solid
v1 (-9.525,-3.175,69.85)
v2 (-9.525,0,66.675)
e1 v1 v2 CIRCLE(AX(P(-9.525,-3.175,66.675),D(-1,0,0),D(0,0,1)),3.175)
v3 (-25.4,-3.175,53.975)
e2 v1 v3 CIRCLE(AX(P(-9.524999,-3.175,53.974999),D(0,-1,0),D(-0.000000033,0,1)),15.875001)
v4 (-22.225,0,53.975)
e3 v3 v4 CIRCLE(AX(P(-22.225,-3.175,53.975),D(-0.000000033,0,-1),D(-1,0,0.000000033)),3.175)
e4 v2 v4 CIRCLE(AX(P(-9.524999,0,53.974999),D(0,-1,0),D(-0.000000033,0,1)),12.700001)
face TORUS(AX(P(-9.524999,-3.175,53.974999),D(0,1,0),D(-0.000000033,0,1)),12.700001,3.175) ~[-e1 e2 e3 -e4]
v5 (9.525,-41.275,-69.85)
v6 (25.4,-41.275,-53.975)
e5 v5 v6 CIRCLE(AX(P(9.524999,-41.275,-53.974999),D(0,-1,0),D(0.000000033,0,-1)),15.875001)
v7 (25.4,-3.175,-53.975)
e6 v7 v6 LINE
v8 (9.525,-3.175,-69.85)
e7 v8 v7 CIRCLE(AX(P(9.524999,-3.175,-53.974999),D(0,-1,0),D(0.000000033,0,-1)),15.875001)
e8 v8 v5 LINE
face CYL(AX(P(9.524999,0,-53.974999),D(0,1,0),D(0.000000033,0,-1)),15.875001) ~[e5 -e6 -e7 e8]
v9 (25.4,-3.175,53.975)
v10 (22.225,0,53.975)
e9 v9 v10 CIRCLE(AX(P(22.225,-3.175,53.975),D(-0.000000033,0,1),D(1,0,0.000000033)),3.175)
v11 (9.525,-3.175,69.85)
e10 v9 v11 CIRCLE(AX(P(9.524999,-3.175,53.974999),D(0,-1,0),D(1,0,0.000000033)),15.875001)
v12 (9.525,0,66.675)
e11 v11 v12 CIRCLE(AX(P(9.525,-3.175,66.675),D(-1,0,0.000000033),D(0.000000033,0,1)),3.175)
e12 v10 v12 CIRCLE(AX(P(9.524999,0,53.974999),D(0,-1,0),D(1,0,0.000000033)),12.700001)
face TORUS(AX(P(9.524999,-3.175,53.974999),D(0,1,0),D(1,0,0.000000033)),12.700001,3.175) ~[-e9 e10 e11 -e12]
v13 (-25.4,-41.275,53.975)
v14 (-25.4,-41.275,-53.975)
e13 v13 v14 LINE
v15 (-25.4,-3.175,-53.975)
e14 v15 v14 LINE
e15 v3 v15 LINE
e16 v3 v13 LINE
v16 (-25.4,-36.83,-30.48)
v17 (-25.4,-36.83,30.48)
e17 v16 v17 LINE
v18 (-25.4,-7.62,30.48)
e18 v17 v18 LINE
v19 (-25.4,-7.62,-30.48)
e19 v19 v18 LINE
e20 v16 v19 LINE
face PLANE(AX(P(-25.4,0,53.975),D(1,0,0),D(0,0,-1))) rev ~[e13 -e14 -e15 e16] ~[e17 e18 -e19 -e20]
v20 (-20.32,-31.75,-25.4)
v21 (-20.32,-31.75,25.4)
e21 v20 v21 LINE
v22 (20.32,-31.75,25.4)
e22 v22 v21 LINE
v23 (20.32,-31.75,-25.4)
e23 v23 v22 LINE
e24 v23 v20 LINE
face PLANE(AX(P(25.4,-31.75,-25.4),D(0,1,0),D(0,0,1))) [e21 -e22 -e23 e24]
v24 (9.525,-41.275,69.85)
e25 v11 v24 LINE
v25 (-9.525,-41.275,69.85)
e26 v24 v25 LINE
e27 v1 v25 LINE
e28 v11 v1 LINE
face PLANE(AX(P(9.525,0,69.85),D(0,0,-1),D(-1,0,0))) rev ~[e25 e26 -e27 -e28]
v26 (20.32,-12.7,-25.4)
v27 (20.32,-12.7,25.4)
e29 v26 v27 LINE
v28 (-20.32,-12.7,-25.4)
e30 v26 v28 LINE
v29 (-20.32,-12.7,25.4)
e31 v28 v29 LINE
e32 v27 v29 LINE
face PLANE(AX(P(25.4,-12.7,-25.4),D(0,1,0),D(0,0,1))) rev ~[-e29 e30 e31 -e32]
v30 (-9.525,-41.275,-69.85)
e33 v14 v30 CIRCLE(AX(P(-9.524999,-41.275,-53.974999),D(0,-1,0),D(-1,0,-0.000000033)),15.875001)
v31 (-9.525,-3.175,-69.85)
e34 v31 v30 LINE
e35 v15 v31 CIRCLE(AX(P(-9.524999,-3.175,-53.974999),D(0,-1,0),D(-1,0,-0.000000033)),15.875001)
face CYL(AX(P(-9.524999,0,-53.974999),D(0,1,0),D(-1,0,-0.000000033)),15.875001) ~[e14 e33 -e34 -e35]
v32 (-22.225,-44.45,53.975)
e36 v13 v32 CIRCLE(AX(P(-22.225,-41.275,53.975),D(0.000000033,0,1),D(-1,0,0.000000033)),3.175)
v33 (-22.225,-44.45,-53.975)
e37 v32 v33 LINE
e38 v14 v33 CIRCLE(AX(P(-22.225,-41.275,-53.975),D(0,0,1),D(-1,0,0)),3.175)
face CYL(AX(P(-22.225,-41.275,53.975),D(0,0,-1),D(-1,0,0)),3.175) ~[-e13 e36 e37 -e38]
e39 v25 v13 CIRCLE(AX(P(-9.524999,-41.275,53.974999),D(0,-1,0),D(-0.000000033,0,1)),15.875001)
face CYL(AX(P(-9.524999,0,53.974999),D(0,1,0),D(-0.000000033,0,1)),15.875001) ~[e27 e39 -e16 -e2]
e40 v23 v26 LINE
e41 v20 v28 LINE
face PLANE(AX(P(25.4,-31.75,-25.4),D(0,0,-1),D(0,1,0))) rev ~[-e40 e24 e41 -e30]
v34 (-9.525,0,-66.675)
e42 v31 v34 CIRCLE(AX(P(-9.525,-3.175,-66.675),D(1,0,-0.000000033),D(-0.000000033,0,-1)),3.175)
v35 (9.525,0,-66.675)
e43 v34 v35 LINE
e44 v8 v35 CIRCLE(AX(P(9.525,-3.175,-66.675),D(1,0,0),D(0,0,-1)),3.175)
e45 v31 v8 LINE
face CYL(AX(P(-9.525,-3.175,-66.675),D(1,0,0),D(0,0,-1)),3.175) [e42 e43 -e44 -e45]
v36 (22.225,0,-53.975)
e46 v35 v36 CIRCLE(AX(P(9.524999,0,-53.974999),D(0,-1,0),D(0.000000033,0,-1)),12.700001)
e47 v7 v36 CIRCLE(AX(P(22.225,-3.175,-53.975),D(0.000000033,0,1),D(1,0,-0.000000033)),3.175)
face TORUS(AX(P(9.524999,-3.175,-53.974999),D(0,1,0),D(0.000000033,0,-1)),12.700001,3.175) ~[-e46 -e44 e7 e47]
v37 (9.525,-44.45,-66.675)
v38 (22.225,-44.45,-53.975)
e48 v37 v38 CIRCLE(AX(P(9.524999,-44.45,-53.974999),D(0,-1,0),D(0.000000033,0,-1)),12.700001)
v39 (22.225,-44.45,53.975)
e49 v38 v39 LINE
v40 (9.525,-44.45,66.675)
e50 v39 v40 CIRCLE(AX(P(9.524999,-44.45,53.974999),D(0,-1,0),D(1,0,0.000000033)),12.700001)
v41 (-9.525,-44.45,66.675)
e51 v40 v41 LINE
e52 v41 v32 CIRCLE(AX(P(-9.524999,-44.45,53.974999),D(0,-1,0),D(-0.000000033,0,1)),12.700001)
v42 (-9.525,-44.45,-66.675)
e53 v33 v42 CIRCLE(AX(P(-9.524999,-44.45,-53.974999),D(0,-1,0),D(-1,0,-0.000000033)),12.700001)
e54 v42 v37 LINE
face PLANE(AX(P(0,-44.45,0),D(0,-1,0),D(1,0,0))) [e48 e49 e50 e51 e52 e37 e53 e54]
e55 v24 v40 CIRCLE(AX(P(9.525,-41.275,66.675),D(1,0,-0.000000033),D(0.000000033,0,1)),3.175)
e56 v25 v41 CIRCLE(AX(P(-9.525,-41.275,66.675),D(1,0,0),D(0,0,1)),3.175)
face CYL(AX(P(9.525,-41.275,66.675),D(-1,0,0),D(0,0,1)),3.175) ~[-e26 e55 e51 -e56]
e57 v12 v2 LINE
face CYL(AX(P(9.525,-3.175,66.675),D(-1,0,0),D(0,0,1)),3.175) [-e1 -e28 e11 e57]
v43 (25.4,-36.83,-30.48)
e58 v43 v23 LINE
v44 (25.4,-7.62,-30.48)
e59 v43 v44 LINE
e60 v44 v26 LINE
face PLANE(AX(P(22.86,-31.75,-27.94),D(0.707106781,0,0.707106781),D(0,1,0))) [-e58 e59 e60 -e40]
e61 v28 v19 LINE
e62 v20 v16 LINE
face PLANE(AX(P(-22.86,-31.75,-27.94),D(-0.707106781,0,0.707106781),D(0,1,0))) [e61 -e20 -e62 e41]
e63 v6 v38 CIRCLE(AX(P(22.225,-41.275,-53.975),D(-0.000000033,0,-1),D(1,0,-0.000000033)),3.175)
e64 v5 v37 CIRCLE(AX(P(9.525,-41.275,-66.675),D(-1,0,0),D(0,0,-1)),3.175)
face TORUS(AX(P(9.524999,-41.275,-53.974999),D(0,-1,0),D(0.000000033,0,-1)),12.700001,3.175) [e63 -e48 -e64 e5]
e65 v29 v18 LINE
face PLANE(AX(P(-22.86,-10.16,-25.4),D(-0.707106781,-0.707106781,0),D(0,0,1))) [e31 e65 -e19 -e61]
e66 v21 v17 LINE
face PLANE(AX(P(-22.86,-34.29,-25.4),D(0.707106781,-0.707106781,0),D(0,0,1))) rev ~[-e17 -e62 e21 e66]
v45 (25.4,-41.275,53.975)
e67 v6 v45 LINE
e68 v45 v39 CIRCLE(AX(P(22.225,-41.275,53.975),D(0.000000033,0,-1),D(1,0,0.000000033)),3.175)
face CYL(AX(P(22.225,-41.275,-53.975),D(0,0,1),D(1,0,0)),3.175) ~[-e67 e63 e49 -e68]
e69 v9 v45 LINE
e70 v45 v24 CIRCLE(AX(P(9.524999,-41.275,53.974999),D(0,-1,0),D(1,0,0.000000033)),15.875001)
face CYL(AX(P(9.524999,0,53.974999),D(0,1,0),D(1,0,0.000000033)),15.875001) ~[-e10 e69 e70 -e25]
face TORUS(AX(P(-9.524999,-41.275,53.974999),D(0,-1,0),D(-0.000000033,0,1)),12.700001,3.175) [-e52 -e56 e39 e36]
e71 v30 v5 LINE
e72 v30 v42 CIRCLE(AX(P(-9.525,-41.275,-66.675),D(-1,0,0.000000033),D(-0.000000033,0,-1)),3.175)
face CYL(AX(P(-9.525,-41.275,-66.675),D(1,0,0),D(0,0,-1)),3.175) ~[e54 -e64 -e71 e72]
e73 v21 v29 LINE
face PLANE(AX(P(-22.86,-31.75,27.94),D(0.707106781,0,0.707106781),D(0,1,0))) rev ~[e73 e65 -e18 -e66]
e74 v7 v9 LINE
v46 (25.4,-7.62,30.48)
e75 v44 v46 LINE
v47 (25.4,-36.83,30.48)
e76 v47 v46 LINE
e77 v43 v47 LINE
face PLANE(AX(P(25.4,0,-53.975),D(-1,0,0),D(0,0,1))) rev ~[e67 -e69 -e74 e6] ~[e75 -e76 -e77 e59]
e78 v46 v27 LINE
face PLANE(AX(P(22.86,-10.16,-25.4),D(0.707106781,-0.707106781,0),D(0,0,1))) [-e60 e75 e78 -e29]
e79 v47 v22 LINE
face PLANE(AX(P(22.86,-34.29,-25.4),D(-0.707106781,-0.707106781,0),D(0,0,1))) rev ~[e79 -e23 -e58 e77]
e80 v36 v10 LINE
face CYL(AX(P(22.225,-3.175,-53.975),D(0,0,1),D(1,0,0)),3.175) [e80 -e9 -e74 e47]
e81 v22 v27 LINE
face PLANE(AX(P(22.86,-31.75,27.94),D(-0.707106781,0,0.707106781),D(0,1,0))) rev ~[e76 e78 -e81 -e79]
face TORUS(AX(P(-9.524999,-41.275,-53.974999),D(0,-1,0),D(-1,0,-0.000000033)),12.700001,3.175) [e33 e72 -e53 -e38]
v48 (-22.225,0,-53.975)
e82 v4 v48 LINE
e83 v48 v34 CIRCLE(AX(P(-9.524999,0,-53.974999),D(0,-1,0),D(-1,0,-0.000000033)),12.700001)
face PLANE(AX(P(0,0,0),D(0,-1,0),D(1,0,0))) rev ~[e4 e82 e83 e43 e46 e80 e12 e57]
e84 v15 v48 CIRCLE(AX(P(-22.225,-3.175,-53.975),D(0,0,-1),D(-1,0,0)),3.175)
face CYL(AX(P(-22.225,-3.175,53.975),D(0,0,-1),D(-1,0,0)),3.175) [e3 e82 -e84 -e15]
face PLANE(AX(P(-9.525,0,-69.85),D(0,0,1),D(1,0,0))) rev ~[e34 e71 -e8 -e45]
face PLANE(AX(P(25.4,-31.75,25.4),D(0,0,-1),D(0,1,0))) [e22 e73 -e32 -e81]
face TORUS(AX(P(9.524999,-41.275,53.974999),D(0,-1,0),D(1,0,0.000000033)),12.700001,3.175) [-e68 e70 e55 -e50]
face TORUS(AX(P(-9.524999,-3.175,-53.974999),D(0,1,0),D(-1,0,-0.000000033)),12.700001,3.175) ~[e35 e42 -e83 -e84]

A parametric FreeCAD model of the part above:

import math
import FreeCAD as App
import Part
import Sketcher
Q = App.Units.Quantity


def edges_at(feature, points):
    """Names of the edges that pass closest to the given points."""
    edges = feature.Shape.Edges
    near = lambda p: min(range(len(edges)), key=lambda i: edges[i].distToShape(Part.Vertex(*p))[0])
    return sorted({f"Edge{near(p) + 1}" for p in points})


def add_polygon(sketch, points):
    """Adds a closed chain of lines whose ends are joined by coincident constraints."""
    first, n = sketch.GeometryCount, len(points)
    for a, b in zip(points, points[1:] + points[:1]):
        sketch.addGeometry(Part.LineSegment(App.Vector(*a, 0), App.Vector(*b, 0)), False)
    for i in range(n):
        sketch.addConstraint(Sketcher.Constraint("Coincident", first + i, 2, first + (i + 1) % n, 1))

doc = App.newDocument("Part")
params = doc.addObject("Spreadsheet::Sheet", "Params")
for row, (alias, value) in enumerate([
    ("sketch1_radius", "0.625 in"),
    ("sketch1_height", "4.25 in"),
    ("pad1_length", "1.75 in"),
    ("fillet_radius", "0.125 in"),
    ("sketch2_height", "2 in"),
    ("sketch2_width", "0.75 in"),
    ("chamfer_size", "0.2 in"),
], start=1):
    params.set(f"A{row}", alias)
    params.set(f"B{row}", "=" + value)
    params.setAlias(f"B{row}", alias)

body = doc.addObject("PartDesign::Body", "Body")

# Sketch on XZ plane
sketch1 = body.newObject("Sketcher::SketchObject", "Sketch")
sketch1.AttachmentSupport = (doc.getObject("XZ_Plane"), [""])
sketch1.MapMode = "FlatFace"
sketch1.addGeometry([
    Part.ArcOfCircle(Part.Circle(App.Vector(10, 54, 0), App.Vector(0, 0, 1), 16), math.radians(0), math.radians(90)),  # 0
    Part.LineSegment(App.Vector(10, 70, 0), App.Vector(-10, 70, 0)),  # 1
    Part.ArcOfCircle(Part.Circle(App.Vector(-10, 54, 0), App.Vector(0, 0, 1), 16), math.radians(90), math.radians(180)),  # 2
    Part.LineSegment(App.Vector(-25, 54, 0), App.Vector(-25, -54, 0)),  # 3
    Part.ArcOfCircle(Part.Circle(App.Vector(-10, -54, 0), App.Vector(0, 0, 1), 16), math.radians(-180), math.radians(-90)),  # 4
    Part.LineSegment(App.Vector(-10, -70, 0), App.Vector(10, -70, 0)),  # 5
    Part.ArcOfCircle(Part.Circle(App.Vector(10, -54, 0), App.Vector(0, 0, 1), 16), math.radians(-90), math.radians(0)),  # 6
    Part.LineSegment(App.Vector(25, -54, 0), App.Vector(25, 54, 0)),  # 7
], False)
sketch1.addConstraint([
    Sketcher.Constraint("Tangent", 0, 2, 1, 1),
    Sketcher.Constraint("Tangent", 1, 2, 2, 1),
    Sketcher.Constraint("Tangent", 2, 2, 3, 1),
    Sketcher.Constraint("Tangent", 3, 2, 4, 1),
    Sketcher.Constraint("Tangent", 4, 2, 5, 1),
    Sketcher.Constraint("Tangent", 5, 2, 6, 1),
    Sketcher.Constraint("Tangent", 6, 2, 7, 1),
    Sketcher.Constraint("Tangent", 7, 2, 0, 1),
    Sketcher.Constraint("Horizontal", 1),
    Sketcher.Constraint("Vertical", 3),
    Sketcher.Constraint("Horizontal", 5),
    Sketcher.Constraint("Vertical", 7),
    Sketcher.Constraint("Equal", 0, 2),
    Sketcher.Constraint("Equal", 2, 4),
    Sketcher.Constraint("Equal", 4, 6),
    Sketcher.Constraint("Symmetric", 0, 3, 4, 3, -1, 1),
    Sketcher.Constraint("DistanceX", 2, 2, -1, 1, Q("1 in")),
    Sketcher.Constraint("Radius", 0, Q("0.625 in")),
    Sketcher.Constraint("DistanceY", 3, 2, 3, 1, Q("4.25 in")),
])
sketch1.setExpression("Constraints[17]", "Params.sketch1_radius")
sketch1.setExpression("Constraints[18]", "Params.sketch1_height")
pad1 = body.newObject("PartDesign::Pad", "Pad")
pad1.Profile = sketch1
pad1.setExpression("Length", "Params.pad1_length")
doc.recompute()

fillet = body.newObject("PartDesign::Fillet", "Fillet")
fillet.Base = (pad1, edges_at(pad1, [
    (20.75, -44.45, 65.2),
    (0, -44.45, 69.85),
    (-20.75, -44.45, 65.2),
    (-25.4, -44.45, 0),
    (-20.75, -44.45, -65.2),
    (0, -44.45, -69.85),
    (20.75, -44.45, -65.2),
    (25.4, -44.45, 0),
    (20.75, 0, 65.2),
    (0, 0, 69.85),
    (-20.75, 0, 65.2),
    (-25.4, 0, 0),
    (-20.75, 0, -65.2),
    (0, 0, -69.85),
    (20.75, 0, -65.2),
    (25.4, 0, 0),
]))
fillet.setExpression("Radius", "Params.fillet_radius")

# Sketch on YZ plane
sketch2 = body.newObject("Sketcher::SketchObject", "Sketch001")
sketch2.AttachmentSupport = (doc.getObject("YZ_Plane"), [""])
sketch2.MapMode = "FlatFace"
sketch2.AttachmentOffset = App.Placement(App.Vector(0, 0, 1 * 25.4), App.Rotation())
add_polygon(sketch2, [(-32, 25), (-32, -25), (-13, -25), (-13, 25)])  # lines 0-3
sketch2.addConstraint([
    Sketcher.Constraint("Vertical", 0),
    Sketcher.Constraint("Horizontal", 1),
    Sketcher.Constraint("Vertical", 2),
    Sketcher.Constraint("Horizontal", 3),
    Sketcher.Constraint("DistanceY", 0, 2, 0, 1, Q("2 in")),
    Sketcher.Constraint("DistanceY", 0, 2, -1, 1, Q("1 in")),
    Sketcher.Constraint("DistanceX", 1, 1, 1, 2, Q("0.75 in")),
    Sketcher.Constraint("DistanceX", 1, 2, -1, 1, Q("0.5 in")),
])
sketch2.setExpression("Constraints[8]", "Params.sketch2_height")
sketch2.setExpression("Constraints[10]", "Params.sketch2_width")
pocket1 = body.newObject("PartDesign::Pocket", "Pocket")
pocket1.Profile = sketch2
pocket1.Type = "ThroughAll"
doc.recompute()

chamfer = body.newObject("PartDesign::Chamfer", "Chamfer")
chamfer.Base = (pocket1, edges_at(pocket1, [
    (25.4, -31.75, 0),
    (25.4, -22.225, 25.4),
    (25.4, -12.7, 0),
    (25.4, -22.225, -25.4),
    (-25.4, -22.225, 25.4),
    (-25.4, -31.75, 0),
    (-25.4, -22.225, -25.4),
    (-25.4, -12.7, 0),
]))
chamfer.setExpression("Size", "Params.chamfer_size")

doc.recompute()
